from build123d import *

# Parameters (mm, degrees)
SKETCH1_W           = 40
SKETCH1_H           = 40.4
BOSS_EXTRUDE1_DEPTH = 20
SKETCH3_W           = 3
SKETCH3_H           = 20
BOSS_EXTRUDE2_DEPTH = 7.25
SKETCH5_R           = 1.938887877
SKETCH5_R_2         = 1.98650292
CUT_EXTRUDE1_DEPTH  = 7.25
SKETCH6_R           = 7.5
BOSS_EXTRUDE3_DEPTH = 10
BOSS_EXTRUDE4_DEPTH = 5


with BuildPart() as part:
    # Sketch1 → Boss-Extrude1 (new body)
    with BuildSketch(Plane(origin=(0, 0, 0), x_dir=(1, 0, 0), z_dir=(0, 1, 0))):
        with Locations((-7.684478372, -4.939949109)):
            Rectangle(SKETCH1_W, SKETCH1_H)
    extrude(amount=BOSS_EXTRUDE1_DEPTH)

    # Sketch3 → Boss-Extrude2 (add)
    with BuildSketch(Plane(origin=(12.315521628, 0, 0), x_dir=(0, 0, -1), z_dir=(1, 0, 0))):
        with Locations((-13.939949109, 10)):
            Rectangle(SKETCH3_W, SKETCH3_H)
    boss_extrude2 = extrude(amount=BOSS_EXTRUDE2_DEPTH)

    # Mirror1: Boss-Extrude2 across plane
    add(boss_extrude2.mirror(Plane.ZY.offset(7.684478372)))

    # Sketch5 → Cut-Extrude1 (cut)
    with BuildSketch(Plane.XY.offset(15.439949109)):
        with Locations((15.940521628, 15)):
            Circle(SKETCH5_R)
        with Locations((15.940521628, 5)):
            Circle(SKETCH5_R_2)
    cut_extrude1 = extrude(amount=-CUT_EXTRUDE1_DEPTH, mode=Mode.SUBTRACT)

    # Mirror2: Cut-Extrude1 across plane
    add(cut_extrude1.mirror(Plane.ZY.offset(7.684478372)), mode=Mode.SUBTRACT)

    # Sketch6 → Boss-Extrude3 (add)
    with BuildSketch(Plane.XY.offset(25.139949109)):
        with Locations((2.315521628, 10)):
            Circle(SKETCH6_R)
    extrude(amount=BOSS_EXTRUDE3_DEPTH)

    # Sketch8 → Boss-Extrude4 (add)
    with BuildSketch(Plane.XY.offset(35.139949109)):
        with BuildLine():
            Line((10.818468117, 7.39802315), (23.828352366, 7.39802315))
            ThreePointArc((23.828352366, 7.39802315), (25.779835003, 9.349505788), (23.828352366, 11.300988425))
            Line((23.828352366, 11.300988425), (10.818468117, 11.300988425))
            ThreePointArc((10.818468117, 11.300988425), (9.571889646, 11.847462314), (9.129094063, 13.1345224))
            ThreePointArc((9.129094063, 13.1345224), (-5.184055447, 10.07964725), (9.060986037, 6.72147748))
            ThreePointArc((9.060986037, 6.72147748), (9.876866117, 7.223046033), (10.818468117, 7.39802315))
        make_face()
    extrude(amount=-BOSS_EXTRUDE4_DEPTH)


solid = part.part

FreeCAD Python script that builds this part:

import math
import FreeCAD as App
import Part
import Sketcher


def add_polygon(sketch, points):
    """Adds a closed chain of lines whose ends are joined by coincident constraints."""
    first, n = sketch.GeometryCount, len(points)
    for a, b in zip(points, points[1:] + points[:1]):
        sketch.addGeometry(Part.LineSegment(App.Vector(*a, 0), App.Vector(*b, 0)), False)
    for i in range(n):
        sketch.addConstraint(Sketcher.Constraint("Coincident", first + i, 2, first + (i + 1) % n, 1))

doc = App.newDocument("Part")
body = doc.addObject("PartDesign::Body", "Body")

# Sketch on XZ plane
sketch1 = body.newObject("Sketcher::SketchObject", "Sketch")
sketch1.AttachmentSupport = (doc.getObject("XZ_Plane"), [""])
sketch1.MapMode = "FlatFace"
add_polygon(sketch1, [(-28, -15), (-28, 25), (12, 25), (12, -15)])  # lines 0-3
sketch1.addConstraint([
    Sketcher.Constraint("Vertical", 0),
    Sketcher.Constraint("Horizontal", 1),
    Sketcher.Constraint("Vertical", 2),
    Sketcher.Constraint("Horizontal", 3),
    Sketcher.Constraint("DistanceX", 1, 1, 1, 2, 40.0),
    Sketcher.Constraint("DistanceY", 0, 1, 0, 2, 40.4),
    Sketcher.Constraint("DistanceX", 0, 2, -1, 1, 27.684478),
    Sketcher.Constraint("DistanceY", -1, 1, 0, 2, 25.139949),
])
pad1 = body.newObject("PartDesign::Pad", "Pad")
pad1.Profile = sketch1
pad1.Length = 20
pad1.Reversed = True

# Sketch on YZ plane
sketch2 = body.newObject("Sketcher::SketchObject", "Sketch001")
sketch2.AttachmentSupport = (doc.getObject("YZ_Plane"), [""])
sketch2.MapMode = "FlatFace"
sketch2.AttachmentOffset = App.Placement(App.Vector(0, 0, 12.315522), App.Rotation())
add_polygon(sketch2, [(20, 15.4), (0, 15.4), (0, 12.4), (20, 12.4)])  # lines 0-3
sketch2.addConstraint([
    Sketcher.Constraint("Horizontal", 0),
    Sketcher.Constraint("Vertical", 1),
    Sketcher.Constraint("Horizontal", 2),
    Sketcher.Constraint("Vertical", 3),
    Sketcher.Constraint("PointOnObject", 0, 2, -2),
    Sketcher.Constraint("DistanceX", 0, 2, 0, 1, 20.0),
    Sketcher.Constraint("DistanceY", 1, 2, 1, 1, 3.0),
    Sketcher.Constraint("DistanceY", -1, 1, 0, 2, 15.439949),
])
pad2 = body.newObject("PartDesign::Pad", "Pad001")
pad2.Profile = sketch2
pad2.Length = 7.25
doc.recompute()

datumplane = body.newObject("PartDesign::Plane", "DatumPlane")
datumplane.AttachmentSupport = (doc.getObject("YZ_Plane"), [""])
datumplane.MapMode = "FlatFace"
datumplane.AttachmentOffset = App.Placement(App.Vector(0, 0, -7.684478), App.Rotation())
mirrored = body.newObject("PartDesign::Mirrored", "Mirrored")
mirrored.Originals = [pad2]
mirrored.MirrorPlane = (datumplane, [""])
body.Tip = mirrored

# Sketch on XY plane
sketch3 = body.newObject("Sketcher::SketchObject", "Sketch002")
sketch3.AttachmentSupport = (doc.getObject("XY_Plane"), [""])
sketch3.MapMode = "FlatFace"
sketch3.AttachmentOffset = App.Placement(App.Vector(0, 0, 15.439949), App.Rotation())
sketch3.addGeometry([
    Part.Circle(App.Vector(15.9, 15, 0), App.Vector(0, 0, 1), 1.9),
    Part.Circle(App.Vector(15.9, 5, 0), App.Vector(0, 0, 1), 2),
], False)
sketch3.addConstraint([
    Sketcher.Constraint("Vertical", 0, 3, 1, 3),
    Sketcher.Constraint("DistanceY", -1, 1, 0, 3, 15.0),
    Sketcher.Constraint("DistanceY", -1, 1, 1, 3, 5.0),
    Sketcher.Constraint("Diameter", 0, 3.877776),
    Sketcher.Constraint("Diameter", 1, 3.973006),
    Sketcher.Constraint("DistanceX", -1, 1, 0, 3, 15.940522),
])
pocket1 = body.newObject("PartDesign::Pocket", "Pocket")
pocket1.Profile = sketch3
pocket1.Length = 7.25
doc.recompute()

datumplane2 = body.newObject("PartDesign::Plane", "DatumPlane001")
datumplane2.AttachmentSupport = (doc.getObject("YZ_Plane"), [""])
datumplane2.MapMode = "FlatFace"
datumplane2.AttachmentOffset = App.Placement(App.Vector(0, 0, -7.684478), App.Rotation())
mirrored2 = body.newObject("PartDesign::Mirrored", "Mirrored001")
mirrored2.Originals = [pocket1]
mirrored2.MirrorPlane = (datumplane2, [""])
body.Tip = mirrored2

# Sketch on XY plane
sketch4 = body.newObject("Sketcher::SketchObject", "Sketch003")
sketch4.AttachmentSupport = (doc.getObject("XY_Plane"), [""])
sketch4.MapMode = "FlatFace"
sketch4.AttachmentOffset = App.Placement(App.Vector(0, 0, 25.139949), App.Rotation())
sketch4.addGeometry(Part.Circle(App.Vector(2, 10, 0), App.Vector(0, 0, 1), 8), False)
sketch4.addConstraint([
    Sketcher.Constraint("Diameter", 0, 15.0),
    Sketcher.Constraint("DistanceY", -1, 1, 0, 3, 10.0),
    Sketcher.Constraint("DistanceX", -1, 1, 0, 3, 2.315522),
])
pad3 = body.newObject("PartDesign::Pad", "Pad002")
pad3.Profile = sketch4
pad3.Length = 10

# Sketch on XY plane
sketch5 = body.newObject("Sketcher::SketchObject", "Sketch004")
sketch5.AttachmentSupport = (doc.getObject("XY_Plane"), [""])
sketch5.MapMode = "FlatFace"
sketch5.AttachmentOffset = App.Placement(App.Vector(0, 0, 35.139949), App.Rotation())
sketch5.addGeometry([
    Part.LineSegment(App.Vector(10.8, 7.4, 0), App.Vector(23.8, 7.4, 0)),  # 0
    Part.ArcOfCircle(Part.Circle(App.Vector(23.8, 9.3, 0), App.Vector(0, 0, 1), 2), math.radians(-90), math.radians(90)),  # 1
    Part.LineSegment(App.Vector(23.8, 11.3, 0), App.Vector(10.8, 11.3, 0)),  # 2
    Part.ArcOfCircle(Part.Circle(App.Vector(10.8, 13, 0), App.Vector(0, 0, 1), 1.7), math.radians(175), math.radians(270)),  # 3
    Part.ArcOfCircle(Part.Circle(App.Vector(2.3, 10, 0), App.Vector(0, 0, 1), 7.5), math.radians(25), math.radians(334)),  # 4
    Part.ArcOfCircle(Part.Circle(App.Vector(10.8, 4.8, 0), App.Vector(0, 0, 1), 2.6), math.radians(90), math.radians(132)),  # 5
], False)
sketch5.addConstraint([
    Sketcher.Constraint("Tangent", 0, 2, 1, 1),
    Sketcher.Constraint("Tangent", 1, 2, 2, 1),
    Sketcher.Constraint("Tangent", 2, 2, 3, 2),
    Sketcher.Constraint("Coincident", 3, 1, 4, 1),
    Sketcher.Constraint("Coincident", 4, 2, 5, 2),
    Sketcher.Constraint("Tangent", 5, 1, 0, 1),
    Sketcher.Constraint("Horizontal", 0),
    Sketcher.Constraint("Horizontal", 2),
    Sketcher.Constraint("Vertical", 3, 3, 5, 3),
    Sketcher.Constraint("Radius", 4, 7.5),
    Sketcher.Constraint("DistanceY", -1, 1, 4, 3, 10.0),
    Sketcher.Constraint("Radius", 3, 1.695041),
    Sketcher.Constraint("Radius", 1, 1.951483),
    Sketcher.Constraint("Radius", 5, 2.621004),
    Sketcher.Constraint("DistanceY", 5, 1, 3, 1, 5.736499),
    Sketcher.Constraint("DistanceX", 0, 1, 0, 2, 13.009884),
    Sketcher.Constraint("DistanceX", -1, 1, 3, 3, 10.818468),
    Sketcher.Constraint("DistanceY", -1, 1, 3, 3, 12.99603),
])
pad4 = body.newObject("PartDesign::Pad", "Pad003")
pad4.Profile = sketch5
pad4.Length = 5
pad4.Reversed = True

doc.recompute()
